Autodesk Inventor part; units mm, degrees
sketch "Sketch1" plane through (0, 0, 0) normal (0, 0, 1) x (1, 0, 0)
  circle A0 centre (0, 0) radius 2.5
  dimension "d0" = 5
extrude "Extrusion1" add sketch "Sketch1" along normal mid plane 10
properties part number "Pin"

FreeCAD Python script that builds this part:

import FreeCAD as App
import Part
import Sketcher

doc = App.newDocument("Part")
body = doc.addObject("PartDesign::Body", "Body")

# Sketch on XY plane
sketch1 = body.newObject("Sketcher::SketchObject", "Sketch")
sketch1.AttachmentSupport = (doc.getObject("XY_Plane"), [""])
sketch1.MapMode = "FlatFace"
sketch1.addGeometry(Part.Circle(App.Vector(0, 0, 0), App.Vector(0, 0, 1), 2.5), False)
sketch1.addConstraint([
    Sketcher.Constraint("Coincident", 0, 3, -1, 1),
    Sketcher.Constraint("Diameter", 0, 5.0),
])
pad1 = body.newObject("PartDesign::Pad", "Pad")
pad1.Profile = sketch1
pad1.Length = 10
pad1.Midplane = True

doc.recompute()
